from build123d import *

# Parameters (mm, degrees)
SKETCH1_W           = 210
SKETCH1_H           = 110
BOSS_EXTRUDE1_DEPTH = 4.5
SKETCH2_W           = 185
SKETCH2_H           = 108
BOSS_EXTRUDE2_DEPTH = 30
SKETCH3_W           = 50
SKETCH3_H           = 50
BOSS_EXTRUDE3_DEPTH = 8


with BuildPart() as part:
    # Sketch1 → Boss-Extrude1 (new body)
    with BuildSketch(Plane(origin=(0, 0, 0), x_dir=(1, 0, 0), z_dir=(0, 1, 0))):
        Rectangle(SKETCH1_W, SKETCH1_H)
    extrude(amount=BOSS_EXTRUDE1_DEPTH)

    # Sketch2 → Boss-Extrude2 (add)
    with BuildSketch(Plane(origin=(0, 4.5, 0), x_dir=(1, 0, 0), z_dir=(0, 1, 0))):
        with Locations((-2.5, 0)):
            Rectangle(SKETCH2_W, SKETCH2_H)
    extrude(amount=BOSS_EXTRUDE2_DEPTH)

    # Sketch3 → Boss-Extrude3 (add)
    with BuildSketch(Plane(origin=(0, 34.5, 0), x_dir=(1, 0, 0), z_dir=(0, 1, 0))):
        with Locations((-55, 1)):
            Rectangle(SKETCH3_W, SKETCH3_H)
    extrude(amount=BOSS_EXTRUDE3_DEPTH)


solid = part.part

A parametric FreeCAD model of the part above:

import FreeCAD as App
import Part
import Sketcher
from FreeCAD import Vector
Q = App.Units.Quantity

doc = App.newDocument("Part")
body = doc.addObject("PartDesign::Body", "Body")

sketch1 = doc.addObject("Sketcher::SketchObject", "Sketch")
body.addObject(sketch1)
sketch1.AttachmentSupport = (doc.XZ_Plane, [""])
sketch1.MapMode = "FlatFace"
sketch1.addGeometry(Part.LineSegment(Vector(-105, -55, 0), Vector(-105, 55, 0)), False)
sketch1.addGeometry(Part.LineSegment(Vector(-105, 55, 0), Vector(105, 55, 0)), False)
sketch1.addGeometry(Part.LineSegment(Vector(105, 55, 0), Vector(105, -55, 0)), False)
sketch1.addGeometry(Part.LineSegment(Vector(105, -55, 0), Vector(-105, -55, 0)), False)
sketch1.addConstraint(Sketcher.Constraint("Coincident", 0, 2, 1, 1))
sketch1.addConstraint(Sketcher.Constraint("Coincident", 1, 2, 2, 1))
sketch1.addConstraint(Sketcher.Constraint("Coincident", 2, 2, 3, 1))
sketch1.addConstraint(Sketcher.Constraint("Coincident", 3, 2, 0, 1))
sketch1.addConstraint(Sketcher.Constraint("Vertical", 0))
sketch1.addConstraint(Sketcher.Constraint("Horizontal", 1))
sketch1.addConstraint(Sketcher.Constraint("Vertical", 2))
sketch1.addConstraint(Sketcher.Constraint("Horizontal", 3))
sketch1.addConstraint(Sketcher.Constraint("Symmetric", 0, 2, 2, 2, -1, 1))
sketch1.addConstraint(Sketcher.Constraint("DistanceX", 1, 1, 1, 2, Q("210 mm")))
sketch1.addConstraint(Sketcher.Constraint("DistanceY", 0, 1, 0, 2, Q("110 mm")))
pad1 = doc.addObject("PartDesign::Pad", "Pad")
body.addObject(pad1)
pad1.Profile = sketch1
pad1.Length = 4.5
pad1.Reversed = True

sketch2 = doc.addObject("Sketcher::SketchObject", "Sketch001")
body.addObject(sketch2)
sketch2.AttachmentSupport = (doc.XZ_Plane, [""])
sketch2.MapMode = "FlatFace"
sketch2.AttachmentOffset = App.Placement(Vector(0, 0, -4.5), App.Rotation())
sketch2.addGeometry(Part.LineSegment(Vector(-95, -54, 0), Vector(-95, 54, 0)), False)
sketch2.addGeometry(Part.LineSegment(Vector(-95, 54, 0), Vector(90, 54, 0)), False)
sketch2.addGeometry(Part.LineSegment(Vector(90, 54, 0), Vector(90, -54, 0)), False)
sketch2.addGeometry(Part.LineSegment(Vector(90, -54, 0), Vector(-95, -54, 0)), False)
sketch2.addConstraint(Sketcher.Constraint("Coincident", 0, 2, 1, 1))
sketch2.addConstraint(Sketcher.Constraint("Coincident", 1, 2, 2, 1))
sketch2.addConstraint(Sketcher.Constraint("Coincident", 2, 2, 3, 1))
sketch2.addConstraint(Sketcher.Constraint("Coincident", 3, 2, 0, 1))
sketch2.addConstraint(Sketcher.Constraint("Vertical", 0))
sketch2.addConstraint(Sketcher.Constraint("Horizontal", 1))
sketch2.addConstraint(Sketcher.Constraint("Vertical", 2))
sketch2.addConstraint(Sketcher.Constraint("Horizontal", 3))
sketch2.addConstraint(Sketcher.Constraint("DistanceX", 1, 1, 1, 2, Q("185 mm")))
sketch2.addConstraint(Sketcher.Constraint("DistanceY", 0, 1, 0, 2, Q("108 mm")))
sketch2.addConstraint(Sketcher.Constraint("DistanceX", 0, 2, -1, 1, Q("95 mm")))
sketch2.addConstraint(Sketcher.Constraint("DistanceY", -1, 1, 0, 2, Q("54 mm")))
pad2 = doc.addObject("PartDesign::Pad", "Pad001")
body.addObject(pad2)
pad2.Profile = sketch2
pad2.Length = 30
pad2.Reversed = True

sketch3 = doc.addObject("Sketcher::SketchObject", "Sketch002")
body.addObject(sketch3)
sketch3.AttachmentSupport = (doc.XZ_Plane, [""])
sketch3.MapMode = "FlatFace"
sketch3.AttachmentOffset = App.Placement(Vector(0, 0, -34.5), App.Rotation())
sketch3.addGeometry(Part.LineSegment(Vector(-80, -26, 0), Vector(-80, 24, 0)), False)
sketch3.addGeometry(Part.LineSegment(Vector(-80, 24, 0), Vector(-30, 24, 0)), False)
sketch3.addGeometry(Part.LineSegment(Vector(-30, 24, 0), Vector(-30, -26, 0)), False)
sketch3.addGeometry(Part.LineSegment(Vector(-30, -26, 0), Vector(-80, -26, 0)), False)
sketch3.addConstraint(Sketcher.Constraint("Coincident", 0, 2, 1, 1))
sketch3.addConstraint(Sketcher.Constraint("Coincident", 1, 2, 2, 1))
sketch3.addConstraint(Sketcher.Constraint("Coincident", 2, 2, 3, 1))
sketch3.addConstraint(Sketcher.Constraint("Coincident", 3, 2, 0, 1))
sketch3.addConstraint(Sketcher.Constraint("Vertical", 0))
sketch3.addConstraint(Sketcher.Constraint("Horizontal", 1))
sketch3.addConstraint(Sketcher.Constraint("Vertical", 2))
sketch3.addConstraint(Sketcher.Constraint("Horizontal", 3))
sketch3.addConstraint(Sketcher.Constraint("Equal", 3, 0))
sketch3.addConstraint(Sketcher.Constraint("DistanceX", 1, 1, 1, 2, Q("50 mm")))
sketch3.addConstraint(Sketcher.Constraint("DistanceX", 0, 2, -1, 1, Q("80 mm")))
sketch3.addConstraint(Sketcher.Constraint("DistanceY", -1, 1, 0, 2, Q("24 mm")))
pad3 = doc.addObject("PartDesign::Pad", "Pad002")
body.addObject(pad3)
pad3.Profile = sketch3
pad3.Length = 8
pad3.Reversed = True

doc.recompute()
